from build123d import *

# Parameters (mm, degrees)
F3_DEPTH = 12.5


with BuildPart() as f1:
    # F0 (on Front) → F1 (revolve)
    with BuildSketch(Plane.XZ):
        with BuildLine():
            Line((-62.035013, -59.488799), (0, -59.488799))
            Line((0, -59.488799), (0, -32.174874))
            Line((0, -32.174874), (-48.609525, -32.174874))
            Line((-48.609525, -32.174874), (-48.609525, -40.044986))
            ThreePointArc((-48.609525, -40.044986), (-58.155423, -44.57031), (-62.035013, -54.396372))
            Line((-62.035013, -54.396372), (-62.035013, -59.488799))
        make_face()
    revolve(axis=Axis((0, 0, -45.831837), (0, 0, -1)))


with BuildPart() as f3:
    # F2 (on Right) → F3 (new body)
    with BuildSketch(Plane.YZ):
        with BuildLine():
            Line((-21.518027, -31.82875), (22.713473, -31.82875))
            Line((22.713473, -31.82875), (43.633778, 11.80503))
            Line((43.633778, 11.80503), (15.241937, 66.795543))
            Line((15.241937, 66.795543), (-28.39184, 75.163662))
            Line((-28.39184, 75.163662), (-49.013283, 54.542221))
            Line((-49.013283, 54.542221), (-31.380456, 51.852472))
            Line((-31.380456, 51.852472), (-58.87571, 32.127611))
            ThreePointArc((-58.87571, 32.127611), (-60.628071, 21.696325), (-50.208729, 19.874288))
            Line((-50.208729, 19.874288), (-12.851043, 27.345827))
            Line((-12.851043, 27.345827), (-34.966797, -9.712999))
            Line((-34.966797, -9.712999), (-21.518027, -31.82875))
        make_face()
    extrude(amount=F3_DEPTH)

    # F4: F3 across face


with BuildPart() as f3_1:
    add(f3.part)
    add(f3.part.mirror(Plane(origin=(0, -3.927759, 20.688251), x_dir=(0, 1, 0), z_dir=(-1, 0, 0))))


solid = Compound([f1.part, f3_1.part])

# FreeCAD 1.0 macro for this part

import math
import FreeCAD as App
import Part
import Sketcher

V = App.Vector
Q = App.Units.Quantity

doc = App.newDocument("Part")
body = doc.addObject("PartDesign::Body", "Body")

# Sketch on XZ plane
sketch1 = body.newObject("Sketcher::SketchObject", "Sketch")
sketch1.AttachmentSupport = (doc.getObject("XZ_Plane"), [""])
sketch1.MapMode = "FlatFace"
sketch1.addGeometry([
    Part.LineSegment(V(-62, -59, 0), V(0, -59, 0)),  # 0
    Part.LineSegment(V(0, -59, 0), V(0, -32, 0)),  # 1
    Part.LineSegment(V(0, -32, 0), V(-49, -32, 0)),  # 2
    Part.LineSegment(V(-49, -32, 0), V(-49, -40, 0)),  # 3
    Part.ArcOfCircle(Part.Circle(V(-48, -54, 0), V(0, 0, 1), 14), math.radians(94), math.radians(180)),  # 4
    Part.LineSegment(V(-62, -54, 0), V(-62, -59, 0)),  # 5
], False)
sketch1.addConstraint([
    Sketcher.Constraint("Coincident", 0, 2, 1, 1),
    Sketcher.Constraint("Coincident", 1, 2, 2, 1),
    Sketcher.Constraint("Coincident", 2, 2, 3, 1),
    Sketcher.Constraint("Coincident", 3, 2, 4, 1),
    Sketcher.Constraint("Tangent", 4, 2, 5, 1),
    Sketcher.Constraint("Coincident", 5, 2, 0, 1),
    Sketcher.Constraint("Horizontal", 0),
    Sketcher.Constraint("Vertical", 1),
    Sketcher.Constraint("Horizontal", 2),
    Sketcher.Constraint("Vertical", 3),
    Sketcher.Constraint("Vertical", 5),
    Sketcher.Constraint("PointOnObject", 0, 2, -2),
    Sketcher.Constraint("Radius", 4, 14.383314),
    Sketcher.Constraint("DistanceY", 3, 2, 3, 1, 7.870112),
    Sketcher.Constraint("DistanceX", 4, 3, -1, 1, 47.651699),
    Sketcher.Constraint("DistanceY", 0, 2, -1, 1, 59.488799),
    Sketcher.Constraint("DistanceY", 4, 3, 1, 2, 22.221499),
    Sketcher.Constraint("DistanceY", 1, 1, 1, 2, 27.313925),
])
revolution = body.newObject("PartDesign::Revolution", "Revolution")
revolution.Profile = sketch1
revolution.ReferenceAxis = (sketch1, ["V_Axis"])
revolution.Angle = 360
body2 = doc.addObject("PartDesign::Body", "Body001")

# Sketch on YZ plane
sketch2 = body2.newObject("Sketcher::SketchObject", "Sketch001")
sketch2.AttachmentSupport = (doc.getObject("YZ_Plane001"), [""])
sketch2.MapMode = "FlatFace"
sketch2.addGeometry([
    Part.LineSegment(V(-22, -32, 0), V(23, -32, 0)),  # 0
    Part.LineSegment(V(23, -32, 0), V(44, 12, 0)),  # 1
    Part.LineSegment(V(44, 12, 0), V(15, 67, 0)),  # 2
    Part.LineSegment(V(15, 67, 0), V(-28, 75, 0)),  # 3
    Part.LineSegment(V(-28, 75, 0), V(-49, 55, 0)),  # 4
    Part.LineSegment(V(-49, 55, 0), V(-31, 52, 0)),  # 5
    Part.LineSegment(V(-31, 52, 0), V(-59, 32, 0)),  # 6
    Part.ArcOfCircle(Part.Circle(V(-55, 26, 0), V(0, 0, 1), 8), math.radians(126), math.radians(305)),  # 7
    Part.LineSegment(V(-50, 20, 0), V(-13, 27, 0)),  # 8
    Part.LineSegment(V(-13, 27, 0), V(-35, -10, 0)),  # 9
    Part.LineSegment(V(-35, -10, 0), V(-22, -32, 0)),  # 10
], False)
sketch2.addConstraint([
    Sketcher.Constraint("Coincident", 0, 2, 1, 1),
    Sketcher.Constraint("Coincident", 1, 2, 2, 1),
    Sketcher.Constraint("Coincident", 2, 2, 3, 1),
    Sketcher.Constraint("Coincident", 3, 2, 4, 1),
    Sketcher.Constraint("Coincident", 4, 2, 5, 1),
    Sketcher.Constraint("Coincident", 5, 2, 6, 1),
    Sketcher.Constraint("Tangent", 6, 2, 7, 1),
    Sketcher.Constraint("Coincident", 7, 2, 8, 1),
    Sketcher.Constraint("Coincident", 8, 2, 9, 1),
    Sketcher.Constraint("Coincident", 9, 2, 10, 1),
    Sketcher.Constraint("Coincident", 10, 2, 0, 1),
    Sketcher.Constraint("Horizontal", 0),
    Sketcher.Constraint("Angle", 4, Q("-135.000003 deg")),
    Sketcher.Constraint("DistanceX", 0, 1, 0, 2, 44.2315),
    Sketcher.Constraint("DistanceY", 9, 2, -1, 1, 9.712999),
    Sketcher.Constraint("Radius", 7, 7.504508),
    Sketcher.Constraint("DistanceY", 7, 3, 6, 2, 6.097699),
    Sketcher.Constraint("DistanceX", 7, 2, 10, 2, 28.690702),
    Sketcher.Constraint("Distance", 1, 48.389729),
    Sketcher.Constraint("Distance", 10, 25.883892),
    Sketcher.Constraint("DistanceY", 0, 2, -1, 1, 31.82875),
    Sketcher.Constraint("DistanceY", -1, 1, 1, 2, 11.80503),
    Sketcher.Constraint("DistanceX", 3, 2, -1, 1, 28.39184),
    Sketcher.Constraint("DistanceY", -1, 1, 4, 2, 54.542221),
    Sketcher.Constraint("DistanceX", 6, 2, -1, 1, 58.87571),
    Sketcher.Constraint("DistanceY", -1, 1, 6, 2, 32.127611),
    Sketcher.Constraint("DistanceX", 7, 2, -1, 1, 50.208729),
    Sketcher.Constraint("DistanceX", 2, 2, 1, 2, 28.391841),
    Sketcher.Constraint("DistanceY", 7, 3, 2, 2, 40.765631),
    Sketcher.Constraint("DistanceY", 2, 2, 3, 2, 8.368119),
    Sketcher.Constraint("DistanceY", 5, 2, 4, 2, 2.689749),
    Sketcher.Constraint("DistanceY", 7, 2, 8, 2, 7.471539),
    Sketcher.Constraint("DistanceX", 7, 3, 8, 2, 41.650229),
])
pad1 = body2.newObject("PartDesign::Pad", "Pad")
pad1.Profile = sketch2
pad1.Length = 12.5
body3 = doc.addObject("PartDesign::Body", "Body002")
doc.recompute()

body3.BaseFeature = body2
doc.recompute()

mirroring = doc.addObject("Part::Mirroring", "Mirroring")
mirroring.Source = body2
mirroring.Base = V(0, -3.927759, 20.688251)
mirroring.Normal = V(-1, 0, 0)
body4 = doc.addObject("PartDesign::Body", "Body003")
body4.BaseFeature = mirroring
boolean = body3.newObject("PartDesign::Boolean", "Boolean")
boolean.Type = "Fuse"
boolean.addObjects([body4])
doc.recompute()
mirroring.Visibility = False

doc.recompute()
